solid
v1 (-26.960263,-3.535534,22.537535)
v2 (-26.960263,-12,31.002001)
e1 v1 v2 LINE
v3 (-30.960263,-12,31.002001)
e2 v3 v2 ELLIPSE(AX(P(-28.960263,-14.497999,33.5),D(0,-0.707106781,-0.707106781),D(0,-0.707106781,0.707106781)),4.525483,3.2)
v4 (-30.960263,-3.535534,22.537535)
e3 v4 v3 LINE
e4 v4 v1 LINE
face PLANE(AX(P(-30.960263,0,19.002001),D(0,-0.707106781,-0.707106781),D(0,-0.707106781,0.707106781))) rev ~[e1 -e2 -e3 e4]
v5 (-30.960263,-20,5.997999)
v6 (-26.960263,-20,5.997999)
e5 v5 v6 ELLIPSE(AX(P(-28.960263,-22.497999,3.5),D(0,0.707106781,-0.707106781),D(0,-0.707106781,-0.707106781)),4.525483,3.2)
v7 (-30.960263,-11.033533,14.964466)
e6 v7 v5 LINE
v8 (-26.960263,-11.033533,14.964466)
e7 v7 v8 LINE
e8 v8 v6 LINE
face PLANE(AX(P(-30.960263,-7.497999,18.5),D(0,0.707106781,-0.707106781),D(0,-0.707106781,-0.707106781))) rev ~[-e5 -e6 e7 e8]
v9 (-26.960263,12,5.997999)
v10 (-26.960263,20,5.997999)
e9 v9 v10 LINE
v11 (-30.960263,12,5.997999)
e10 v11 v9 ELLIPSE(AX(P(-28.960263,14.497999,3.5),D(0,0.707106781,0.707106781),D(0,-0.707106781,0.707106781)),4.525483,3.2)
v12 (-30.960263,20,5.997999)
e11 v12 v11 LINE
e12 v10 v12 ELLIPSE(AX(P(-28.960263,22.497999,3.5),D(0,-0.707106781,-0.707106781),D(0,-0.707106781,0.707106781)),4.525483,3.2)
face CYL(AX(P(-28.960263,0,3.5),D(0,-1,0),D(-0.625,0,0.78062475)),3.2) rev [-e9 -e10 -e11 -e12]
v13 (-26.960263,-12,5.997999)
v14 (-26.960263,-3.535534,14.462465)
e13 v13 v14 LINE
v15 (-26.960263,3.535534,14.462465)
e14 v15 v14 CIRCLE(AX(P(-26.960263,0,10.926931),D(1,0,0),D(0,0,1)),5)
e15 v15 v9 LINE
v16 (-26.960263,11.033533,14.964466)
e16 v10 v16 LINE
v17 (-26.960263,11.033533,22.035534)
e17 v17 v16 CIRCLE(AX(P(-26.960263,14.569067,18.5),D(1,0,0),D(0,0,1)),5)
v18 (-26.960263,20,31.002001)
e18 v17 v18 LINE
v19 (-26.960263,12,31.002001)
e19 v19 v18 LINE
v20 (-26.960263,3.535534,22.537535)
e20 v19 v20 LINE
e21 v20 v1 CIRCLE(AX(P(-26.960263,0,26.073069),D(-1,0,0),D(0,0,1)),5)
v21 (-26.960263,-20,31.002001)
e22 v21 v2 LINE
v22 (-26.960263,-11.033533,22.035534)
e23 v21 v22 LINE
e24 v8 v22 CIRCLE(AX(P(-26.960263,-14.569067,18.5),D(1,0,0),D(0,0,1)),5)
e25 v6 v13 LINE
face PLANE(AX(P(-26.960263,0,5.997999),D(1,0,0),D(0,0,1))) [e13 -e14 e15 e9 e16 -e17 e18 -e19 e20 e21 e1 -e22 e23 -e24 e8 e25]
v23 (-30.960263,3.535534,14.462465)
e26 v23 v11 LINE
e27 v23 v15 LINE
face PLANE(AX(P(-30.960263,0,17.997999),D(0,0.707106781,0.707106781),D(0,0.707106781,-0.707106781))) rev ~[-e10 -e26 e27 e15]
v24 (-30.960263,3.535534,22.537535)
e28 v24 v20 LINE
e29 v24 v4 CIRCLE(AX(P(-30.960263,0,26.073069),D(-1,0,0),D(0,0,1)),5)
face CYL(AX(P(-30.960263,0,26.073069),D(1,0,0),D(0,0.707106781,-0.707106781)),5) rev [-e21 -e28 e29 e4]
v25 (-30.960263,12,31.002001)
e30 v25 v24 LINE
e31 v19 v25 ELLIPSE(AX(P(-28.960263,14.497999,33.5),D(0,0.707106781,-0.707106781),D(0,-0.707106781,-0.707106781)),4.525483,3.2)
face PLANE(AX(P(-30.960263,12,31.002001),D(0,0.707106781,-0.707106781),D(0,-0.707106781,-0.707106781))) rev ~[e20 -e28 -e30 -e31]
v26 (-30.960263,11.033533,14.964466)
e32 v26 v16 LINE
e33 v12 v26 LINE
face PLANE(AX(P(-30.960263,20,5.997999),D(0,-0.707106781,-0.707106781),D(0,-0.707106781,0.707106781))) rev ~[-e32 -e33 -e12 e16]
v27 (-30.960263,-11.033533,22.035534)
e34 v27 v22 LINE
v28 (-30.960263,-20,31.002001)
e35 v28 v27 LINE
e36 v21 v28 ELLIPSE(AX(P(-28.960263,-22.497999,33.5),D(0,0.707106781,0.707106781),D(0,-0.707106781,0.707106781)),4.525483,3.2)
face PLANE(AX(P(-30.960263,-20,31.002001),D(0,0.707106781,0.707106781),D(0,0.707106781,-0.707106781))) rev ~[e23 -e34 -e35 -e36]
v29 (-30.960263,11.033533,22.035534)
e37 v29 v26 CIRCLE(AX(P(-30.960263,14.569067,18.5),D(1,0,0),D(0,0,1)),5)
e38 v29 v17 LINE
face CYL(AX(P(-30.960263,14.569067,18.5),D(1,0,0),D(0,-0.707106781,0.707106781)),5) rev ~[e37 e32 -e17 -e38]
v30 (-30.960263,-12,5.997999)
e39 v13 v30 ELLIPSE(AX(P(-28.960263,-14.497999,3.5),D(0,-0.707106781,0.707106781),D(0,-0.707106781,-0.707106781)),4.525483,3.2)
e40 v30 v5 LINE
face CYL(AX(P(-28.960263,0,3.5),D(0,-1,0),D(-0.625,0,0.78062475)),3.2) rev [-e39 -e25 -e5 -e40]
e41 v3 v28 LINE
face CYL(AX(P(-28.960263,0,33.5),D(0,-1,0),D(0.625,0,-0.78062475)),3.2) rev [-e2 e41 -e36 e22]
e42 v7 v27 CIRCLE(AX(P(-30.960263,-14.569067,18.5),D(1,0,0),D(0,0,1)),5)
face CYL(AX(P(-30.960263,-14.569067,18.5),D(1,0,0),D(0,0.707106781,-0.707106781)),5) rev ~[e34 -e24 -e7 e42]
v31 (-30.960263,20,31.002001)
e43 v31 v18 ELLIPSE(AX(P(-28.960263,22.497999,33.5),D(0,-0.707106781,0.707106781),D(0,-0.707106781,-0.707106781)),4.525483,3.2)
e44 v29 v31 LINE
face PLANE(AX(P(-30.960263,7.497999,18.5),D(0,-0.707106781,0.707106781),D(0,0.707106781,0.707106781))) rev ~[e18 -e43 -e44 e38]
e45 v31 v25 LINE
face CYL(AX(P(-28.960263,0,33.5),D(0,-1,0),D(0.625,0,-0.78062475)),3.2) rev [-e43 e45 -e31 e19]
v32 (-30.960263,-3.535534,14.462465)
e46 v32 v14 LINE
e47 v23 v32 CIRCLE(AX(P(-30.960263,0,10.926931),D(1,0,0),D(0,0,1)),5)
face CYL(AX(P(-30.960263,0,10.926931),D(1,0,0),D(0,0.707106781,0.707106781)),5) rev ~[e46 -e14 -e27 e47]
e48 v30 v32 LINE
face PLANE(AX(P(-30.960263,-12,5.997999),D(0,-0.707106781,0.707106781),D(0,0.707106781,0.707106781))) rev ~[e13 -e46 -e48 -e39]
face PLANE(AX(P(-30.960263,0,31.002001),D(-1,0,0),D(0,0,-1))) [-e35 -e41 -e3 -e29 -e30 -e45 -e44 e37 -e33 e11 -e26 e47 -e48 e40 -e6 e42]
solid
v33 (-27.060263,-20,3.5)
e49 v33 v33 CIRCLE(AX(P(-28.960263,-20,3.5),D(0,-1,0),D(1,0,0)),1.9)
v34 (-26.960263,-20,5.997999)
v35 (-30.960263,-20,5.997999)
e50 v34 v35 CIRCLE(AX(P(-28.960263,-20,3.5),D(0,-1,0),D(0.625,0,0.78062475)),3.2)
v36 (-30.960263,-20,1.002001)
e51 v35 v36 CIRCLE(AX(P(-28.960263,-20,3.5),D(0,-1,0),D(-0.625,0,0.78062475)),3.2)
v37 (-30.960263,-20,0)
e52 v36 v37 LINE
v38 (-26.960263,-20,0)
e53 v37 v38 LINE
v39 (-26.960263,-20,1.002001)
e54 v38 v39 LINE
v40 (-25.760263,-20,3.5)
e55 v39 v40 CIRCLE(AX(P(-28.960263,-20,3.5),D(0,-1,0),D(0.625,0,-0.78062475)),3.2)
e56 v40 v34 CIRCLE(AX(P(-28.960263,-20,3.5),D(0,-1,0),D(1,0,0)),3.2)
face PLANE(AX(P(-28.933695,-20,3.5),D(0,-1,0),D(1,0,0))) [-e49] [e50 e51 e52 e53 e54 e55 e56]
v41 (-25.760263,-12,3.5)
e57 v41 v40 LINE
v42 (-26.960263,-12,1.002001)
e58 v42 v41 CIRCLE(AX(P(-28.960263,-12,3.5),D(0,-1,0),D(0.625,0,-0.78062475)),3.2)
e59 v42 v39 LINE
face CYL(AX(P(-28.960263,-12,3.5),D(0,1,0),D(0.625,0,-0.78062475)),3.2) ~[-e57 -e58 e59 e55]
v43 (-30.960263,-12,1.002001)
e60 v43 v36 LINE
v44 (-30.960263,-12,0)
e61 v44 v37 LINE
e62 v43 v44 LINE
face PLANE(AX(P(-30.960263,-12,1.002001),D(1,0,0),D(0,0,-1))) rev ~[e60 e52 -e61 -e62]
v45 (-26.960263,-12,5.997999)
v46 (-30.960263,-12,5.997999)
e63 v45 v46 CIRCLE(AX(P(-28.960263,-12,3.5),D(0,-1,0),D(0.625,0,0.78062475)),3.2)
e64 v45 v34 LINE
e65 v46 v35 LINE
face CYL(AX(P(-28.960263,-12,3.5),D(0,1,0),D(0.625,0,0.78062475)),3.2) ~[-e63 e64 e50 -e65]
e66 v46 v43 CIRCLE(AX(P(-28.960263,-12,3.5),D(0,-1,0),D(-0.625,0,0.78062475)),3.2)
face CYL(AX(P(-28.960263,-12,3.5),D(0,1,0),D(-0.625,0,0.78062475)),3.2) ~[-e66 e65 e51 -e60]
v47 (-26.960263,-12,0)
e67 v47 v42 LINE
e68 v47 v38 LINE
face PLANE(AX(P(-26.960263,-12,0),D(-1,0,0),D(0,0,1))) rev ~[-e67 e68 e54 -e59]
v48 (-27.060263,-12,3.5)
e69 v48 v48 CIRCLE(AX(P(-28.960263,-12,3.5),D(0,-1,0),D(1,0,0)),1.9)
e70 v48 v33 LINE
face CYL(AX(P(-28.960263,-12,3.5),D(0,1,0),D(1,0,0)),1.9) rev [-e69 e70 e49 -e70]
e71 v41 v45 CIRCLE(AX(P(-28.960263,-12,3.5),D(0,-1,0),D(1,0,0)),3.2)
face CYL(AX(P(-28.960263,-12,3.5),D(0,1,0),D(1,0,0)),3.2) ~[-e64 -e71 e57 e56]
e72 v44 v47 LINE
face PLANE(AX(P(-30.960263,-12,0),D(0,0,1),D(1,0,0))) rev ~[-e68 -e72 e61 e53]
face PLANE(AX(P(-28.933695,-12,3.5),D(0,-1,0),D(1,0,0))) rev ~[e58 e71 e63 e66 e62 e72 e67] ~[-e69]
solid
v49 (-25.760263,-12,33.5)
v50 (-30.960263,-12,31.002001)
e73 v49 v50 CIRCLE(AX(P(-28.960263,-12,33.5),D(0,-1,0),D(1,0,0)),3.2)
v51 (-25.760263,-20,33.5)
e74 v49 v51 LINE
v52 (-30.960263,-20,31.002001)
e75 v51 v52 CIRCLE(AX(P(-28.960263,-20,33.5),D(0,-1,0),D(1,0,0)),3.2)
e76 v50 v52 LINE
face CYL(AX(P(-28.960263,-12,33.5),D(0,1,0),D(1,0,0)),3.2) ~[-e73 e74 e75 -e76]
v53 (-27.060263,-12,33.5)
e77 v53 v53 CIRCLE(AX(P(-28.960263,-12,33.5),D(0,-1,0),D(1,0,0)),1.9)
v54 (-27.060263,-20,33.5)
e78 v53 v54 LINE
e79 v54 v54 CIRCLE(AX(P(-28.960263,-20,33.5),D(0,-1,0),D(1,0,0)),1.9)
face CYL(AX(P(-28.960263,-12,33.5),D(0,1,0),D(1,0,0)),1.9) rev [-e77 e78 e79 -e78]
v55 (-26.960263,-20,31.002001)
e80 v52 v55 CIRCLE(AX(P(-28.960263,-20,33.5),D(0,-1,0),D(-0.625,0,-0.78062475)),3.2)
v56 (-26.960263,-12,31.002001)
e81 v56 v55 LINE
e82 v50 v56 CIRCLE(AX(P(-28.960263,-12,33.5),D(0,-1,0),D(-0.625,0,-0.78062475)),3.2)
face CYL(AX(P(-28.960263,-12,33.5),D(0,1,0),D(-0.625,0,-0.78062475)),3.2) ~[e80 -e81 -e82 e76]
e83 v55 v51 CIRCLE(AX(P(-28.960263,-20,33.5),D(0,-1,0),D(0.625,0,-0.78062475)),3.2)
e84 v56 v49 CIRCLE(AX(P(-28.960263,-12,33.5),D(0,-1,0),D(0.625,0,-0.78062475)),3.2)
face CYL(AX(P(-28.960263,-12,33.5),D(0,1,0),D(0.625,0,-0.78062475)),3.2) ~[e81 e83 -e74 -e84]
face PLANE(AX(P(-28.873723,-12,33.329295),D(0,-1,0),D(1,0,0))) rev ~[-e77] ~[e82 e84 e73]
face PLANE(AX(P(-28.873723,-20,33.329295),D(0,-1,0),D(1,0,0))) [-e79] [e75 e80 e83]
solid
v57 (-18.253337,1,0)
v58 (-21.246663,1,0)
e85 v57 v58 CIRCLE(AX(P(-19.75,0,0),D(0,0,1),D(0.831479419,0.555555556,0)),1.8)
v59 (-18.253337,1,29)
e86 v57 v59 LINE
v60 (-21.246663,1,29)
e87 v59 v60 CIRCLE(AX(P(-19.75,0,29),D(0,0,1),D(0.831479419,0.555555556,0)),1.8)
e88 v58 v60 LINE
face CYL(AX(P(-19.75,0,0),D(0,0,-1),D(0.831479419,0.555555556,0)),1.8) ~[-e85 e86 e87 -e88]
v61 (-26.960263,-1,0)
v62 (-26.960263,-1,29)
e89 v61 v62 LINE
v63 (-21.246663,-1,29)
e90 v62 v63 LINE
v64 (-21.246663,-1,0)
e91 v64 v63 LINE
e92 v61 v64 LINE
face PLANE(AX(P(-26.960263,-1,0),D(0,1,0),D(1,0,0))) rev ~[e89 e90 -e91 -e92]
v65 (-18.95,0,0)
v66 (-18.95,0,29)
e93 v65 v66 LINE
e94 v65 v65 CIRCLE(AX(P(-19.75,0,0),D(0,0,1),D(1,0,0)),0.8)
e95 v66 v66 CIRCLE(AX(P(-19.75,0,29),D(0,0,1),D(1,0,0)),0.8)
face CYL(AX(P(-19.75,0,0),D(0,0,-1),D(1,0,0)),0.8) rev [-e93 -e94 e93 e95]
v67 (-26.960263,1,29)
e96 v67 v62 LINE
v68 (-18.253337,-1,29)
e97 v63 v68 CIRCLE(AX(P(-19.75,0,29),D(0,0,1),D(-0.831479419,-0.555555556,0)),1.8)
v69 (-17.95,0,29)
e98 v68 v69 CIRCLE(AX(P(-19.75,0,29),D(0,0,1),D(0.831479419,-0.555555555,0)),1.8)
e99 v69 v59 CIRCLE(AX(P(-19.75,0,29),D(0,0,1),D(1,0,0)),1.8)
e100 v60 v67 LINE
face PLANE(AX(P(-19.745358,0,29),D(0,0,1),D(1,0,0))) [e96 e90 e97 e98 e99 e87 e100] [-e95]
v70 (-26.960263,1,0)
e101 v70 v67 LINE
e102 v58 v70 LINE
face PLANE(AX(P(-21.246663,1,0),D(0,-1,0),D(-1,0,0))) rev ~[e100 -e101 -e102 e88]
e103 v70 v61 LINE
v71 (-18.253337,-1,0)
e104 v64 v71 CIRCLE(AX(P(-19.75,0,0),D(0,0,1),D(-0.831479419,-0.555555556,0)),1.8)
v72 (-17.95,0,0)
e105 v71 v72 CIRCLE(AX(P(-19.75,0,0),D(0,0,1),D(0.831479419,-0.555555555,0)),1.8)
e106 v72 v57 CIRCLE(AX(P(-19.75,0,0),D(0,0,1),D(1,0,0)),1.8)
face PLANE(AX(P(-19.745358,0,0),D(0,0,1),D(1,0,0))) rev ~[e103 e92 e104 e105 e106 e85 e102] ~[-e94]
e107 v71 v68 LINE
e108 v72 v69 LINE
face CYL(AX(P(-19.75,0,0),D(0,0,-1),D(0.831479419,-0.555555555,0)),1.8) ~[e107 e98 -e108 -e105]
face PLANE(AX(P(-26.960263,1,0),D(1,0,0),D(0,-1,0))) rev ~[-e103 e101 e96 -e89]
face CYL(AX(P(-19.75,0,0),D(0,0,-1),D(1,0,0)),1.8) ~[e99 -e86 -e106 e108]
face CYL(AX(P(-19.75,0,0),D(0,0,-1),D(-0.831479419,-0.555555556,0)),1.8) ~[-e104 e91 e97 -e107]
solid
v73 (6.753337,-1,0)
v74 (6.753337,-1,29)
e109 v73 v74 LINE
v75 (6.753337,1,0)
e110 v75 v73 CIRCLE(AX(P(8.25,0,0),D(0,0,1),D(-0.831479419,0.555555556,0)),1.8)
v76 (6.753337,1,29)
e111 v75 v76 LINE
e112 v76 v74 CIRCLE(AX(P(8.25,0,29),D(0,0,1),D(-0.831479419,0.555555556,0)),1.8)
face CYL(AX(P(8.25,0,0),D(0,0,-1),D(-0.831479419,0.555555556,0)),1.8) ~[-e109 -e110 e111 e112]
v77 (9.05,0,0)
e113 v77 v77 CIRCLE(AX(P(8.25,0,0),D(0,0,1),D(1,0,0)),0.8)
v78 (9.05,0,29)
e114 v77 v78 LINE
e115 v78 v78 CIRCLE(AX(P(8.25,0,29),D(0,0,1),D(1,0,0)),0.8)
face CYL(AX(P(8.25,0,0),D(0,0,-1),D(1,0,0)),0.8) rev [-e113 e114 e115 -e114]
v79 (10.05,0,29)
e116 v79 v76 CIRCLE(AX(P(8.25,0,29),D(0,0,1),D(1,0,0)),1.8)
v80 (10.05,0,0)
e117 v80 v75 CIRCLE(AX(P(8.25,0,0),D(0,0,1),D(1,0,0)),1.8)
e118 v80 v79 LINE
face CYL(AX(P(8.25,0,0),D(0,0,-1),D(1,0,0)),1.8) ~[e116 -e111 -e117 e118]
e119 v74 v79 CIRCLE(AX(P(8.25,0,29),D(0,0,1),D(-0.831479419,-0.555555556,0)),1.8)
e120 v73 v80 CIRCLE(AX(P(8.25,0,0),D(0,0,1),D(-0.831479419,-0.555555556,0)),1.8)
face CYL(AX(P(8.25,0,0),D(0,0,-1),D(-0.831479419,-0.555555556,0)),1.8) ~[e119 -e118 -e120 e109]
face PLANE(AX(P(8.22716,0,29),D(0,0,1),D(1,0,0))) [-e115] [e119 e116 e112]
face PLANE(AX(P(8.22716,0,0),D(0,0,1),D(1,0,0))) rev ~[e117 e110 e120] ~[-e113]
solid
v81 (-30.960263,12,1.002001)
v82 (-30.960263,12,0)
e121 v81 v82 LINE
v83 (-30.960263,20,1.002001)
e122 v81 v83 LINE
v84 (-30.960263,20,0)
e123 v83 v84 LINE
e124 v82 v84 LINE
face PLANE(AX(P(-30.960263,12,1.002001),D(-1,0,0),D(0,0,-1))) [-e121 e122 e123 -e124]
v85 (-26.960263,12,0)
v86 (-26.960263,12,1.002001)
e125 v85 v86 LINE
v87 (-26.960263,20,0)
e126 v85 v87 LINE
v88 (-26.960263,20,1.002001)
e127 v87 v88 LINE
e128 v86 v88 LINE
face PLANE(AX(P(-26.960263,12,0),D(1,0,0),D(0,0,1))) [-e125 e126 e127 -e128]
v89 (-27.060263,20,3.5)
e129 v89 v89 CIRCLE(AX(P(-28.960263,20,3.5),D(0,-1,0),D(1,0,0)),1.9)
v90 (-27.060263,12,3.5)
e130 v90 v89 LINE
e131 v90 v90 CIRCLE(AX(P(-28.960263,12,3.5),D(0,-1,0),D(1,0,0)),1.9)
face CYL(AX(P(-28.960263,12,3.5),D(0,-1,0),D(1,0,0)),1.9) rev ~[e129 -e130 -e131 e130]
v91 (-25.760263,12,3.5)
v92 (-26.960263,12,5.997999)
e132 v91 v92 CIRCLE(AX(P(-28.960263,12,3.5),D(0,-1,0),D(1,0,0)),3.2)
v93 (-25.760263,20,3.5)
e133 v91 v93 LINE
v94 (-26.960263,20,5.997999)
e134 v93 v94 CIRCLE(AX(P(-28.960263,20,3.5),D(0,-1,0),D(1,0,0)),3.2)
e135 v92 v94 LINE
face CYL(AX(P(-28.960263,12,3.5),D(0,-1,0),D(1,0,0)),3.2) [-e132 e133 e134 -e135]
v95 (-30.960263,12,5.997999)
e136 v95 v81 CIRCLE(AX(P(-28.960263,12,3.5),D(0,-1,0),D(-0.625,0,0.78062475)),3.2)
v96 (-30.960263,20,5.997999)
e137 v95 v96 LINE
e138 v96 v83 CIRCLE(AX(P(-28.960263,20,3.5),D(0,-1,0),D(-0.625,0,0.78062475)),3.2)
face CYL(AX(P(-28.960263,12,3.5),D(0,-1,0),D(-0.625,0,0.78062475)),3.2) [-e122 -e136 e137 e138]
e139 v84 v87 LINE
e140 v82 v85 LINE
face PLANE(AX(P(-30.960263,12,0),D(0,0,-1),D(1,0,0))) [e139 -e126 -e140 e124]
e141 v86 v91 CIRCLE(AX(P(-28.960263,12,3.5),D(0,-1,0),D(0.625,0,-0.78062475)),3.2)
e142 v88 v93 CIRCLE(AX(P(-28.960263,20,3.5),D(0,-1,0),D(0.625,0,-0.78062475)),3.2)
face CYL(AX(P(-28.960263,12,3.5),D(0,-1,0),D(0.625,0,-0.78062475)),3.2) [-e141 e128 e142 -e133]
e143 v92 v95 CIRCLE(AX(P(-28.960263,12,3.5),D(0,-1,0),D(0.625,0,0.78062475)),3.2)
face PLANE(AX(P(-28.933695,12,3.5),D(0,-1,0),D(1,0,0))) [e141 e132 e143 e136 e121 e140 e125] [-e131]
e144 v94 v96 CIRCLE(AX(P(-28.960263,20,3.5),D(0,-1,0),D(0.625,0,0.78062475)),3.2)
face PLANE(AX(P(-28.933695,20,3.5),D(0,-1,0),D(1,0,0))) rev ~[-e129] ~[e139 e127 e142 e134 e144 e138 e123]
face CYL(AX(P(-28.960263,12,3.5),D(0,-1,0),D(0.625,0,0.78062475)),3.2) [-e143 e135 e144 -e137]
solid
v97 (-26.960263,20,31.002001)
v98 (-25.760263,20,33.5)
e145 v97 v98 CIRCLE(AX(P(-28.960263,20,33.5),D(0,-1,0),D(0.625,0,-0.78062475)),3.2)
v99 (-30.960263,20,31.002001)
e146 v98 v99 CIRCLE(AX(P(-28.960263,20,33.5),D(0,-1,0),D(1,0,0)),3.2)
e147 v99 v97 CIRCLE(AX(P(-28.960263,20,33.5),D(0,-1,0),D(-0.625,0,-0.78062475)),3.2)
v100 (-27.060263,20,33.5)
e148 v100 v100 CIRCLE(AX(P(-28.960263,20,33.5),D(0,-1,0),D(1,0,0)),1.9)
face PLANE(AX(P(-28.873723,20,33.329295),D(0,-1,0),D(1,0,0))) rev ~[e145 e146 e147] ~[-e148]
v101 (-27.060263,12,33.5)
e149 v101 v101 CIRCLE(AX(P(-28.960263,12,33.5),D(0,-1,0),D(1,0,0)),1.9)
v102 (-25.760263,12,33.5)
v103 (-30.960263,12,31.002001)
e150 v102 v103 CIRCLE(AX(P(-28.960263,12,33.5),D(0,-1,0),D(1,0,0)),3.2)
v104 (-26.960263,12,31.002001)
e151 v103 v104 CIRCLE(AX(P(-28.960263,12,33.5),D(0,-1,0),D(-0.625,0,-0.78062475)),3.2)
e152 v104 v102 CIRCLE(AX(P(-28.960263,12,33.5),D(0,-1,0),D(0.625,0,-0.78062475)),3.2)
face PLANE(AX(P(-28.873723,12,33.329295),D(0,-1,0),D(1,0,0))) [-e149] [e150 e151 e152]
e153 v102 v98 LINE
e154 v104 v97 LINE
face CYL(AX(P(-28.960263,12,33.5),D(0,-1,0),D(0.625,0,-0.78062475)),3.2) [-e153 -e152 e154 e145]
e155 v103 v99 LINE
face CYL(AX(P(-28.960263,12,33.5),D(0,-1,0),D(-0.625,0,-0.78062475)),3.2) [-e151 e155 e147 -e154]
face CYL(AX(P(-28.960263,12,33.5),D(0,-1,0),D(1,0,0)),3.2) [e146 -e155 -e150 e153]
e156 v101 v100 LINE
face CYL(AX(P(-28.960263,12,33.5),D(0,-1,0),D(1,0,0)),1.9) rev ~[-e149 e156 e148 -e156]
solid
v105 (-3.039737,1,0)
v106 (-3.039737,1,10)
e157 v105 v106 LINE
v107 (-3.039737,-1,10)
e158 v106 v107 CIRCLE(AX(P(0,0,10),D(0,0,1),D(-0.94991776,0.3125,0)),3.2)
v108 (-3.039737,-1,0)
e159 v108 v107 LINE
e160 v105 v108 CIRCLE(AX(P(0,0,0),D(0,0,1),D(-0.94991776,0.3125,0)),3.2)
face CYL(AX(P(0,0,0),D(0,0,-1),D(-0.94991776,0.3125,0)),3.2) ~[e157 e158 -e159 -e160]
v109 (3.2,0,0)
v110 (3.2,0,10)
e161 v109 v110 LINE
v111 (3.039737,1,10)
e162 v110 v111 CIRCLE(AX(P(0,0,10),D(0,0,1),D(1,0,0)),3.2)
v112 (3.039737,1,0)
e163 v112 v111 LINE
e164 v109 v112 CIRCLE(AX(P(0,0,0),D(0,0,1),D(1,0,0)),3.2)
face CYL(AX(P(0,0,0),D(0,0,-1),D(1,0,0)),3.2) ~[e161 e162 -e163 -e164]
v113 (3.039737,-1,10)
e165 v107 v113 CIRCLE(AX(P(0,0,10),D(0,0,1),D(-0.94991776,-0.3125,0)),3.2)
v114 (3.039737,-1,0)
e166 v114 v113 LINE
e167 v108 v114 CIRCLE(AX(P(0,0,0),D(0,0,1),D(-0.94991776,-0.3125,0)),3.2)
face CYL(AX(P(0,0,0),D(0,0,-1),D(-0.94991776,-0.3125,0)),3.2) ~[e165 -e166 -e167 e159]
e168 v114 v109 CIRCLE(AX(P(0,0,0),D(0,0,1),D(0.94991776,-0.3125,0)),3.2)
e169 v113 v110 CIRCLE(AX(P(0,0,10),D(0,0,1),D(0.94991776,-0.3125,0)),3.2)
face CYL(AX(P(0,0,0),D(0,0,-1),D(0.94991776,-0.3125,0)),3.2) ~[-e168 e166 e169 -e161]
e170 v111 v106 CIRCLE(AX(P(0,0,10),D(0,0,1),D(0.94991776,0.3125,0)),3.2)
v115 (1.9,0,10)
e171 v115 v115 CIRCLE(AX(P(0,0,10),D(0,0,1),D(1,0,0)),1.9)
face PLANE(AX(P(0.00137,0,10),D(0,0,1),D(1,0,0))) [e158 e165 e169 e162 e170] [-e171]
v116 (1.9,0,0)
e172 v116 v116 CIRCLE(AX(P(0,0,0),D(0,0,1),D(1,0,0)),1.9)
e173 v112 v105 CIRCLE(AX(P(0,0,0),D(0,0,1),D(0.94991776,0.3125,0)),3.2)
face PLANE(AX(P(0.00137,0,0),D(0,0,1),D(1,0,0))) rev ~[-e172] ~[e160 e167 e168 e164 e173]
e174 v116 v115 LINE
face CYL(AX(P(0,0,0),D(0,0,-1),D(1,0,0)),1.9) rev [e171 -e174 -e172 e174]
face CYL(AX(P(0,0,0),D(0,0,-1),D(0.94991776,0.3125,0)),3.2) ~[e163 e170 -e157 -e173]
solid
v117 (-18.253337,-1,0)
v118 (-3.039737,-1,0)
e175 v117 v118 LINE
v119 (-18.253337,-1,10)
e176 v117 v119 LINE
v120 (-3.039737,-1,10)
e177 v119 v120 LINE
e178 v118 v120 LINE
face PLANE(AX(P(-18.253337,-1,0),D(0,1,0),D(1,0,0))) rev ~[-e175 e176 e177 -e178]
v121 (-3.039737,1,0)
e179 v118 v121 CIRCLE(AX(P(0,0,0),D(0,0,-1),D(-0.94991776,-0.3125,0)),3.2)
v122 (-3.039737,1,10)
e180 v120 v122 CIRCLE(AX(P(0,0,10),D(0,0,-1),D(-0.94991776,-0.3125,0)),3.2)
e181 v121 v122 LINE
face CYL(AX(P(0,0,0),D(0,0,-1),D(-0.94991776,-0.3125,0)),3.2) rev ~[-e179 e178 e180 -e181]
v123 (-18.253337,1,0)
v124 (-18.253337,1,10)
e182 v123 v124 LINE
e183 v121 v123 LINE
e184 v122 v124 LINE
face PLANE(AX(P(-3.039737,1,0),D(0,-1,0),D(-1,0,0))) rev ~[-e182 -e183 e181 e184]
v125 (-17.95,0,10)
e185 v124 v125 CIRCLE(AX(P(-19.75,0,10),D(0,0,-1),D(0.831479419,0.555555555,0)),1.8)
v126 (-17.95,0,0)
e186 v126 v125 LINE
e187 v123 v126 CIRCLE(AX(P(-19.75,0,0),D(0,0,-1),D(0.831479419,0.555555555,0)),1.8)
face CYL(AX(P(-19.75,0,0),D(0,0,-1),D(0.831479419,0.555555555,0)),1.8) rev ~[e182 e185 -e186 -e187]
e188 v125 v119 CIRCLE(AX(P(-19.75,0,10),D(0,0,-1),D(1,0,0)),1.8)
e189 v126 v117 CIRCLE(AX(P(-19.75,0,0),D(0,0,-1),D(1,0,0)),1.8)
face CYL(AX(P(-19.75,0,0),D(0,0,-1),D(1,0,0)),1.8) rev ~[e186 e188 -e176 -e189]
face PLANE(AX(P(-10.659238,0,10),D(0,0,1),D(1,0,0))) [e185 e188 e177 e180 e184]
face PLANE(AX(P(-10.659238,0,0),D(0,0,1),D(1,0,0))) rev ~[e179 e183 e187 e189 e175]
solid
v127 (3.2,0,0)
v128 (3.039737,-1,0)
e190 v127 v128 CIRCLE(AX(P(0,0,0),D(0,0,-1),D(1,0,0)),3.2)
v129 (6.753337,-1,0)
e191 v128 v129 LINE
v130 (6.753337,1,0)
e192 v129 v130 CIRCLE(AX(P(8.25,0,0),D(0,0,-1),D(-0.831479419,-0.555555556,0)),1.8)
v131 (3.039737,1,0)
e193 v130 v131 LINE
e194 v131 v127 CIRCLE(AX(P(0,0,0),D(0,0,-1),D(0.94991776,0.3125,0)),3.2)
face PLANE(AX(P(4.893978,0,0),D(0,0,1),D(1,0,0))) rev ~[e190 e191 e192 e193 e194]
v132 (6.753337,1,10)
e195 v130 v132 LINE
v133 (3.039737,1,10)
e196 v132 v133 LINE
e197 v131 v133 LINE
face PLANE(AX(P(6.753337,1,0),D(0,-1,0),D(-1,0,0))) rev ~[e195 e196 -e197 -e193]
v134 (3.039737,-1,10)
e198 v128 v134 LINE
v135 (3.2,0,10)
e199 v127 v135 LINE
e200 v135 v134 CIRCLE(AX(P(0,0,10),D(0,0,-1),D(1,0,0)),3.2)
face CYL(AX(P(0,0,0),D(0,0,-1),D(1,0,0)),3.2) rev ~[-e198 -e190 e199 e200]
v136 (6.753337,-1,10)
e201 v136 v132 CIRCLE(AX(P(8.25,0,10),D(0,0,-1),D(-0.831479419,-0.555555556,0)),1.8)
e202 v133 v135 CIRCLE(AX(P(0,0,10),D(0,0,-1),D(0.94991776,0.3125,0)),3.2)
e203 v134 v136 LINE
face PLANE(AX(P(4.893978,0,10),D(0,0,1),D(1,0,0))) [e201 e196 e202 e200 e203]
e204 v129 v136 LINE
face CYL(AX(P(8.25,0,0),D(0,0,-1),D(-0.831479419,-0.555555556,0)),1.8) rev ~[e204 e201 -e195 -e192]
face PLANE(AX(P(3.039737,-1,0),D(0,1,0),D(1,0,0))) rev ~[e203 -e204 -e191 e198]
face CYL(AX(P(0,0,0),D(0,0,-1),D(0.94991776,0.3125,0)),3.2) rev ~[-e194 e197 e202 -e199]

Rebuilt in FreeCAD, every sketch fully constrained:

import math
import FreeCAD as App
import Part
import Sketcher

V = App.Vector


def edges_at(feature, points):
    """Names of the edges that pass closest to the given points."""
    edges = feature.Shape.Edges
    near = lambda p: min(range(len(edges)), key=lambda i: edges[i].distToShape(Part.Vertex(*p))[0])
    return sorted({f"Edge{near(p) + 1}" for p in points})

doc = App.newDocument("Part")
body = doc.addObject("PartDesign::Body", "Body")

# Sketch on XY plane
sketch1 = body.newObject("Sketcher::SketchObject", "Sketch")
sketch1.AttachmentSupport = (doc.getObject("XY_Plane"), [""])
sketch1.MapMode = "FlatFace"
sketch1.addGeometry([
    Part.ArcOfCircle(Part.Circle(V(-19.75, 0, 0), V(0, 0, 1), 1.8), math.radians(0), math.radians(33.748989)),  # 0
    Part.ArcOfCircle(Part.Circle(V(-19.75, 0, 0), V(0, 0, 1), 1.8), math.radians(33.748989), math.radians(146.251011)),  # 1
    Part.LineSegment(V(-21.246663, 1, 0), V(-26.960263, 1, 0)),  # 2
    Part.LineSegment(V(-26.960263, 1, 0), V(-26.960263, -1, 0)),  # 3
    Part.LineSegment(V(-26.960263, -1, 0), V(-21.246663, -1, 0)),  # 4
    Part.ArcOfCircle(Part.Circle(V(-19.75, 0, 0), V(0, 0, 1), 1.8), math.radians(-146.251011), math.radians(-33.748989)),  # 5
    Part.ArcOfCircle(Part.Circle(V(-19.75, 0, 0), V(0, 0, 1), 1.8), math.radians(-33.748989), math.radians(0)),  # 6
    Part.Circle(V(-19.75, 0, 0), V(0, 0, 1), 0.8),  # 7
], False)
sketch1.addConstraint([
    Sketcher.Constraint("Tangent", 0, 2, 1, 1),
    Sketcher.Constraint("Coincident", 1, 2, 2, 1),
    Sketcher.Constraint("Coincident", 2, 2, 3, 1),
    Sketcher.Constraint("Coincident", 3, 2, 4, 1),
    Sketcher.Constraint("Coincident", 4, 2, 5, 1),
    Sketcher.Constraint("Tangent", 5, 2, 6, 1),
    Sketcher.Constraint("Tangent", 6, 2, 0, 1),
    Sketcher.Constraint("Horizontal", 2),
    Sketcher.Constraint("Vertical", 3),
    Sketcher.Constraint("Horizontal", 4),
    Sketcher.Constraint("Coincident", 5, 3, 0, 3),
    Sketcher.Constraint("Coincident", 7, 3, 0, 3),
    Sketcher.Constraint("Equal", 0, 1),
    Sketcher.Constraint("Symmetric", 1, 2, 4, 2, -1),
    Sketcher.Constraint("PointOnObject", 6, 2, -1),
    Sketcher.Constraint("Horizontal", 0, 2, 1, 2),
    Sketcher.Constraint("Horizontal", 4, 2, 5, 2),
    Sketcher.Constraint("Diameter", 7, 1.6),
    Sketcher.Constraint("Radius", 0, 1.8),
    Sketcher.Constraint("DistanceY", 3, 2, 3, 1, 2.0),
    Sketcher.Constraint("DistanceX", 0, 3, -1, 1, 19.75),
    Sketcher.Constraint("DistanceX", 2, 2, 2, 1, 5.7136),
])
pad1 = body.newObject("PartDesign::Pad", "Pad")
pad1.Profile = sketch1
pad1.Length = 29
body2 = doc.addObject("PartDesign::Body", "Body001")

# Sketch on XY plane
sketch2 = body2.newObject("Sketcher::SketchObject", "Sketch001")
sketch2.AttachmentSupport = (doc.getObject("XY_Plane001"), [""])
sketch2.MapMode = "FlatFace"
sketch2.addGeometry([
    Part.ArcOfCircle(Part.Circle(V(8.25, 0, 0), V(0, 0, 1), 1.8), math.radians(0), math.radians(146.251011)),
    Part.ArcOfCircle(Part.Circle(V(8.25, 0, 0), V(0, 0, 1), 1.8), math.radians(146.251011), math.radians(213.748989)),
    Part.ArcOfCircle(Part.Circle(V(8.25, 0, 0), V(0, 0, 1), 1.8), math.radians(-146.251011), math.radians(0)),
    Part.Circle(V(8.25, 0, 0), V(0, 0, 1), 0.8),
], False)
sketch2.addConstraint([
    Sketcher.Constraint("Tangent", 0, 2, 1, 1),
    Sketcher.Constraint("Tangent", 1, 2, 2, 1),
    Sketcher.Constraint("Tangent", 2, 2, 0, 1),
    Sketcher.Constraint("Coincident", 3, 3, 0, 3),
    Sketcher.Constraint("Symmetric", 0, 2, 1, 2, -1),
    Sketcher.Constraint("PointOnObject", 2, 2, -1),
    Sketcher.Constraint("Diameter", 3, 1.6),
    Sketcher.Constraint("Radius", 0, 1.8),
    Sketcher.Constraint("DistanceY", -1, 1, 0, 2, 1.0),
    Sketcher.Constraint("DistanceX", -1, 1, 0, 3, 8.25),
])
pad2 = body2.newObject("PartDesign::Pad", "Pad001")
pad2.Profile = sketch2
pad2.Length = 29
body3 = doc.addObject("PartDesign::Body", "Body002")

# Sketch on XY plane
sketch3 = body3.newObject("Sketcher::SketchObject", "Sketch002")
sketch3.AttachmentSupport = (doc.getObject("XY_Plane002"), [""])
sketch3.MapMode = "FlatFace"
sketch3.addGeometry([
    Part.ArcOfCircle(Part.Circle(V(0, 0, 0), V(0, 0, 1), 3.2), math.radians(161.790043), math.radians(198.209957)),  # 0
    Part.LineSegment(V(-3.039737, 1, 0), V(-18.253337, 1, 0)),  # 1
    Part.ArcOfCircle(Part.Circle(V(-19.75, 0, 0), V(0, 0, 1), 1.8), math.radians(0), math.radians(33.748989)),  # 2
    Part.ArcOfCircle(Part.Circle(V(-19.75, 0, 0), V(0, 0, 1), 1.8), math.radians(-33.748989), math.radians(0)),  # 3
    Part.LineSegment(V(-18.253337, -1, 0), V(-3.039737, -1, 0)),  # 4
], False)
sketch3.addConstraint([
    Sketcher.Constraint("Coincident", 0, 1, 1, 1),
    Sketcher.Constraint("Coincident", 1, 2, 2, 2),
    Sketcher.Constraint("Tangent", 2, 1, 3, 2),
    Sketcher.Constraint("Coincident", 3, 1, 4, 1),
    Sketcher.Constraint("Coincident", 4, 2, 0, 2),
    Sketcher.Constraint("Horizontal", 1),
    Sketcher.Constraint("Horizontal", 4),
    Sketcher.Constraint("Coincident", 0, 3, -1, 1),
    Sketcher.Constraint("Equal", 2, 3),
    Sketcher.Constraint("Symmetric", 1, 2, 3, 1, -1),
    Sketcher.Constraint("PointOnObject", 2, 1, -1),
    Sketcher.Constraint("Radius", 0, 3.2),
    Sketcher.Constraint("Radius", 2, 1.8),
    Sketcher.Constraint("DistanceY", -1, 1, 0, 1, 1.0),
    Sketcher.Constraint("DistanceX", 2, 3, -1, 1, 19.75),
])
pad3 = body3.newObject("PartDesign::Pad", "Pad002")
pad3.Profile = sketch3
pad3.Length = 10
body4 = doc.addObject("PartDesign::Body", "Body003")

# Sketch on XY plane
sketch4 = body4.newObject("Sketcher::SketchObject", "Sketch003")
sketch4.AttachmentSupport = (doc.getObject("XY_Plane003"), [""])
sketch4.MapMode = "FlatFace"
sketch4.addGeometry([
    Part.ArcOfCircle(Part.Circle(V(0, 0, 0), V(0, 0, 1), 3.2), math.radians(0), math.radians(18.209957)),  # 0
    Part.ArcOfCircle(Part.Circle(V(0, 0, 0), V(0, 0, 1), 3.2), math.radians(-18.209957), math.radians(0)),  # 1
    Part.LineSegment(V(3.039737, -1, 0), V(6.753337, -1, 0)),  # 2
    Part.ArcOfCircle(Part.Circle(V(8.25, 0, 0), V(0, 0, 1), 1.8), math.radians(146.251011), math.radians(213.748989)),  # 3
    Part.LineSegment(V(6.753337, 1, 0), V(3.039737, 1, 0)),  # 4
], False)
sketch4.addConstraint([
    Sketcher.Constraint("Tangent", 0, 1, 1, 2),
    Sketcher.Constraint("Coincident", 1, 1, 2, 1),
    Sketcher.Constraint("Coincident", 2, 2, 3, 2),
    Sketcher.Constraint("Coincident", 3, 1, 4, 1),
    Sketcher.Constraint("Coincident", 4, 2, 0, 2),
    Sketcher.Constraint("Horizontal", 2),
    Sketcher.Constraint("Horizontal", 4),
    Sketcher.Constraint("Coincident", 0, 3, -1, 1),
    Sketcher.Constraint("Equal", 0, 1),
    Sketcher.Constraint("Symmetric", 2, 2, 3, 1, -1),
    Sketcher.Constraint("PointOnObject", 0, 1, -1),
    Sketcher.Constraint("Radius", 0, 3.2),
    Sketcher.Constraint("Radius", 3, 1.8),
    Sketcher.Constraint("DistanceY", 1, 1, -1, 1, 1.0),
    Sketcher.Constraint("DistanceX", -1, 1, 3, 3, 8.25),
])
pad4 = body4.newObject("PartDesign::Pad", "Pad003")
pad4.Profile = sketch4
pad4.Length = 10
body5 = doc.addObject("PartDesign::Body", "Body004")

# Sketch on XY plane
sketch5 = body5.newObject("Sketcher::SketchObject", "Sketch004")
sketch5.AttachmentSupport = (doc.getObject("XY_Plane004"), [""])
sketch5.MapMode = "FlatFace"
sketch5.addGeometry([
    Part.ArcOfCircle(Part.Circle(V(0, 0, 0), V(0, 0, 1), 3.2), math.radians(-18.209957), math.radians(0)),  # 0
    Part.ArcOfCircle(Part.Circle(V(0, 0, 0), V(0, 0, 1), 3.2), math.radians(0), math.radians(18.209957)),  # 1
    Part.ArcOfCircle(Part.Circle(V(0, 0, 0), V(0, 0, 1), 3.2), math.radians(18.209957), math.radians(161.790043)),  # 2
    Part.ArcOfCircle(Part.Circle(V(0, 0, 0), V(0, 0, 1), 3.2), math.radians(161.790043), math.radians(198.209957)),  # 3
    Part.ArcOfCircle(Part.Circle(V(0, 0, 0), V(0, 0, 1), 3.2), math.radians(-161.790043), math.radians(-18.209957)),  # 4
    Part.Circle(V(0, 0, 0), V(0, 0, 1), 1.9),  # 5
], False)
sketch5.addConstraint([
    Sketcher.Constraint("Tangent", 0, 2, 1, 1),
    Sketcher.Constraint("Tangent", 1, 2, 2, 1),
    Sketcher.Constraint("Tangent", 2, 2, 3, 1),
    Sketcher.Constraint("Tangent", 3, 2, 4, 1),
    Sketcher.Constraint("Tangent", 4, 2, 0, 1),
    Sketcher.Constraint("Coincident", 0, 3, -1, 1),
    Sketcher.Constraint("Coincident", 2, 3, -1, 1),
    Sketcher.Constraint("Coincident", 5, 3, -1, 1),
    Sketcher.Constraint("PointOnObject", 0, 2, -1),
    Sketcher.Constraint("Horizontal", 1, 2, 2, 2),
    Sketcher.Constraint("Horizontal", 3, 2, 4, 2),
    Sketcher.Constraint("Vertical", 2, 2, 3, 2),
    Sketcher.Constraint("Diameter", 5, 3.8),
    Sketcher.Constraint("Radius", 0, 3.2),
    Sketcher.Constraint("DistanceY", -1, 1, 1, 2, 1.0),
])
pad5 = body5.newObject("PartDesign::Pad", "Pad004")
pad5.Profile = sketch5
pad5.Length = 10
body6 = doc.addObject("PartDesign::Body", "Body005")

# Sketch on XZ plane
sketch6 = body6.newObject("Sketcher::SketchObject", "Sketch005")
sketch6.AttachmentSupport = (doc.getObject("XZ_Plane005"), [""])
sketch6.MapMode = "FlatFace"
sketch6.AttachmentOffset = App.Placement(V(0, 0, 12), App.Rotation())
sketch6.addGeometry([
    Part.ArcOfCircle(Part.Circle(V(-28.960263, 33.5, 0), V(0, 0, 1), 3.2), math.radians(-51.317813), math.radians(0)),
    Part.ArcOfCircle(Part.Circle(V(-28.960263, 33.5, 0), V(0, 0, 1), 3.2), math.radians(0), math.radians(231.317813)),
    Part.ArcOfCircle(Part.Circle(V(-28.960263, 33.5, 0), V(0, 0, 1), 3.2), math.radians(-128.682187), math.radians(-51.317813)),
    Part.Circle(V(-28.960263, 33.5, 0), V(0, 0, 1), 1.9),
], False)
sketch6.addConstraint([
    Sketcher.Constraint("Tangent", 0, 2, 1, 1),
    Sketcher.Constraint("Tangent", 1, 2, 2, 1),
    Sketcher.Constraint("Tangent", 2, 2, 0, 1),
    Sketcher.Constraint("Coincident", 3, 3, 0, 3),
    Sketcher.Constraint("Horizontal", 3, 3, 0, 2),
    Sketcher.Constraint("Horizontal", 1, 2, 2, 2),
    Sketcher.Constraint("Diameter", 3, 3.8),
    Sketcher.Constraint("Radius", 0, 3.2),
    Sketcher.Constraint("DistanceX", 1, 2, 0, 3, 2.0),
    Sketcher.Constraint("DistanceY", -1, 1, 0, 3, 33.5),
    Sketcher.Constraint("DistanceX", 0, 3, -1, 1, 28.960263),
])
pad6 = body6.newObject("PartDesign::Pad", "Pad005")
pad6.Profile = sketch6
pad6.Length = 8
body7 = doc.addObject("PartDesign::Body", "Body006")

# Sketch on XZ plane
sketch7 = body7.newObject("Sketcher::SketchObject", "Sketch006")
sketch7.AttachmentSupport = (doc.getObject("XZ_Plane006"), [""])
sketch7.MapMode = "FlatFace"
sketch7.AttachmentOffset = App.Placement(V(0, 0, 12), App.Rotation())
sketch7.addGeometry([
    Part.ArcOfCircle(Part.Circle(V(-28.960263, 3.5, 0), V(0, 0, 1), 3.2), math.radians(51.317813), math.radians(128.682187)),  # 0
    Part.ArcOfCircle(Part.Circle(V(-28.960263, 3.5, 0), V(0, 0, 1), 3.2), math.radians(128.682187), math.radians(231.317813)),  # 1
    Part.LineSegment(V(-30.960263, 1.002001, 0), V(-30.960263, 0, 0)),  # 2
    Part.LineSegment(V(-30.960263, 0, 0), V(-26.960263, 0, 0)),  # 3
    Part.LineSegment(V(-26.960263, 0, 0), V(-26.960263, 1.002001, 0)),  # 4
    Part.ArcOfCircle(Part.Circle(V(-28.960263, 3.5, 0), V(0, 0, 1), 3.2), math.radians(-51.317813), math.radians(0)),  # 5
    Part.ArcOfCircle(Part.Circle(V(-28.960263, 3.5, 0), V(0, 0, 1), 3.2), math.radians(0), math.radians(51.317813)),  # 6
    Part.Circle(V(-28.960263, 3.5, 0), V(0, 0, 1), 1.9),  # 7
], False)
sketch7.addConstraint([
    Sketcher.Constraint("Tangent", 0, 2, 1, 1),
    Sketcher.Constraint("Coincident", 1, 2, 2, 1),
    Sketcher.Constraint("Coincident", 2, 2, 3, 1),
    Sketcher.Constraint("Coincident", 3, 2, 4, 1),
    Sketcher.Constraint("Coincident", 4, 2, 5, 1),
    Sketcher.Constraint("Tangent", 5, 2, 6, 1),
    Sketcher.Constraint("Tangent", 6, 2, 0, 1),
    Sketcher.Constraint("Vertical", 2),
    Sketcher.Constraint("Horizontal", 3),
    Sketcher.Constraint("Vertical", 4),
    Sketcher.Constraint("Coincident", 5, 3, 0, 3),
    Sketcher.Constraint("Coincident", 7, 3, 0, 3),
    Sketcher.Constraint("Equal", 0, 1),
    Sketcher.Constraint("PointOnObject", 2, 2, -1),
    Sketcher.Constraint("Horizontal", 1, 2, 4, 2),
    Sketcher.Constraint("Horizontal", 7, 3, 5, 2),
    Sketcher.Constraint("Horizontal", 0, 2, 6, 2),
    Sketcher.Constraint("Vertical", 0, 2, 1, 2),
    Sketcher.Constraint("Diameter", 7, 3.8),
    Sketcher.Constraint("Radius", 0, 3.2),
    Sketcher.Constraint("DistanceX", 3, 1, 3, 2, 4.0),
    Sketcher.Constraint("DistanceY", -1, 1, 0, 3, 3.5),
    Sketcher.Constraint("DistanceX", 0, 3, -1, 1, 28.960263),
])
pad7 = body7.newObject("PartDesign::Pad", "Pad006")
pad7.Profile = sketch7
pad7.Length = 8
body8 = doc.addObject("PartDesign::Body", "Body007")

# Sketch on XZ plane
sketch8 = body8.newObject("Sketcher::SketchObject", "Sketch007")
sketch8.AttachmentSupport = (doc.getObject("XZ_Plane007"), [""])
sketch8.MapMode = "FlatFace"
sketch8.AttachmentOffset = App.Placement(V(0, 0, -12), App.Rotation())
sketch8.addGeometry([
    Part.ArcOfCircle(Part.Circle(V(-28.960263, 33.5, 0), V(0, 0, 1), 3.2), math.radians(-51.317813), math.radians(0)),
    Part.ArcOfCircle(Part.Circle(V(-28.960263, 33.5, 0), V(0, 0, 1), 3.2), math.radians(0), math.radians(231.317813)),
    Part.ArcOfCircle(Part.Circle(V(-28.960263, 33.5, 0), V(0, 0, 1), 3.2), math.radians(-128.682187), math.radians(-51.317813)),
    Part.Circle(V(-28.960263, 33.5, 0), V(0, 0, 1), 1.9),
], False)
sketch8.addConstraint([
    Sketcher.Constraint("Tangent", 0, 2, 1, 1),
    Sketcher.Constraint("Tangent", 1, 2, 2, 1),
    Sketcher.Constraint("Tangent", 2, 2, 0, 1),
    Sketcher.Constraint("Coincident", 3, 3, 0, 3),
    Sketcher.Constraint("Horizontal", 3, 3, 0, 2),
    Sketcher.Constraint("Horizontal", 1, 2, 2, 2),
    Sketcher.Constraint("Diameter", 3, 3.8),
    Sketcher.Constraint("Radius", 0, 3.2),
    Sketcher.Constraint("DistanceX", 1, 2, 0, 3, 2.0),
    Sketcher.Constraint("DistanceY", -1, 1, 0, 3, 33.5),
    Sketcher.Constraint("DistanceX", 0, 3, -1, 1, 28.960263),
])
pad8 = body8.newObject("PartDesign::Pad", "Pad007")
pad8.Profile = sketch8
pad8.Length = 8
pad8.Reversed = True
body9 = doc.addObject("PartDesign::Body", "Body008")

# Sketch on XZ plane
sketch9 = body9.newObject("Sketcher::SketchObject", "Sketch008")
sketch9.AttachmentSupport = (doc.getObject("XZ_Plane008"), [""])
sketch9.MapMode = "FlatFace"
sketch9.AttachmentOffset = App.Placement(V(0, 0, -12), App.Rotation())
sketch9.addGeometry([
    Part.ArcOfCircle(Part.Circle(V(-28.960263, 3.5, 0), V(0, 0, 1), 3.2), math.radians(51.317813), math.radians(128.682187)),  # 0
    Part.ArcOfCircle(Part.Circle(V(-28.960263, 3.5, 0), V(0, 0, 1), 3.2), math.radians(128.682187), math.radians(231.317813)),  # 1
    Part.LineSegment(V(-30.960263, 1.002001, 0), V(-30.960263, 0, 0)),  # 2
    Part.LineSegment(V(-30.960263, 0, 0), V(-26.960263, 0, 0)),  # 3
    Part.LineSegment(V(-26.960263, 0, 0), V(-26.960263, 1.002001, 0)),  # 4
    Part.ArcOfCircle(Part.Circle(V(-28.960263, 3.5, 0), V(0, 0, 1), 3.2), math.radians(-51.317813), math.radians(0)),  # 5
    Part.ArcOfCircle(Part.Circle(V(-28.960263, 3.5, 0), V(0, 0, 1), 3.2), math.radians(0), math.radians(51.317813)),  # 6
    Part.Circle(V(-28.960263, 3.5, 0), V(0, 0, 1), 1.9),  # 7
], False)
sketch9.addConstraint([
    Sketcher.Constraint("Tangent", 0, 2, 1, 1),
    Sketcher.Constraint("Coincident", 1, 2, 2, 1),
    Sketcher.Constraint("Coincident", 2, 2, 3, 1),
    Sketcher.Constraint("Coincident", 3, 2, 4, 1),
    Sketcher.Constraint("Coincident", 4, 2, 5, 1),
    Sketcher.Constraint("Tangent", 5, 2, 6, 1),
    Sketcher.Constraint("Tangent", 6, 2, 0, 1),
    Sketcher.Constraint("Vertical", 2),
    Sketcher.Constraint("Horizontal", 3),
    Sketcher.Constraint("Vertical", 4),
    Sketcher.Constraint("Coincident", 5, 3, 0, 3),
    Sketcher.Constraint("Coincident", 7, 3, 0, 3),
    Sketcher.Constraint("Equal", 0, 1),
    Sketcher.Constraint("PointOnObject", 2, 2, -1),
    Sketcher.Constraint("Horizontal", 1, 2, 4, 2),
    Sketcher.Constraint("Horizontal", 7, 3, 5, 2),
    Sketcher.Constraint("Horizontal", 0, 2, 6, 2),
    Sketcher.Constraint("Vertical", 0, 2, 1, 2),
    Sketcher.Constraint("Diameter", 7, 3.8),
    Sketcher.Constraint("Radius", 0, 3.2),
    Sketcher.Constraint("DistanceX", 3, 1, 3, 2, 4.0),
    Sketcher.Constraint("DistanceY", -1, 1, 0, 3, 3.5),
    Sketcher.Constraint("DistanceX", 0, 3, -1, 1, 28.960263),
])
pad9 = body9.newObject("PartDesign::Pad", "Pad008")
pad9.Profile = sketch9
pad9.Length = 8
pad9.Reversed = True
body10 = doc.addObject("PartDesign::Body", "Body009")

# Sketch on XZ plane
sketch10 = body10.newObject("Sketcher::SketchObject", "Sketch009")
sketch10.AttachmentSupport = (doc.getObject("XZ_Plane009"), [""])
sketch10.MapMode = "FlatFace"
sketch10.addGeometry([
    Part.ArcOfCircle(Part.Circle(V(-28.960263, 33.5, 0), V(0, 0, 1), 3.2), math.radians(-128.682187), math.radians(-51.317813)),
    Part.LineSegment(V(-30.960263, 31.002001, 0), V(-30.960263, 5.997999, 0)),
    Part.ArcOfCircle(Part.Circle(V(-28.960263, 3.5, 0), V(0, 0, 1), 3.2), math.radians(51.317813), math.radians(128.682187)),
    Part.LineSegment(V(-26.960263, 5.997999, 0), V(-26.960263, 31.002001, 0)),
], False)
sketch10.addConstraint([
    Sketcher.Constraint("Coincident", 0, 1, 1, 1),
    Sketcher.Constraint("Coincident", 1, 2, 2, 2),
    Sketcher.Constraint("Coincident", 2, 1, 3, 1),
    Sketcher.Constraint("Coincident", 3, 2, 0, 2),
    Sketcher.Constraint("Vertical", 1),
    Sketcher.Constraint("Vertical", 3),
    Sketcher.Constraint("Equal", 0, 2),
    Sketcher.Constraint("Horizontal", 1, 2, 2, 1),
    Sketcher.Constraint("Horizontal", 0, 1, 3, 2),
    Sketcher.Constraint("Radius", 0, 3.2),
    Sketcher.Constraint("DistanceY", 2, 3, 0, 3, 30.0),
    Sketcher.Constraint("DistanceX", 0, 1, 0, 3, 2.0),
    Sketcher.Constraint("DistanceY", -1, 1, 0, 3, 33.5),
    Sketcher.Constraint("DistanceX", 0, 3, -1, 1, 28.960263),
])
pad10 = body10.newObject("PartDesign::Pad", "Pad009")
pad10.Profile = sketch10
pad10.Length = 40
pad10.Midplane = True

# Sketch on YZ plane
sketch11 = body10.newObject("Sketcher::SketchObject", "Sketch010")
sketch11.AttachmentSupport = (doc.getObject("YZ_Plane009"), [""])
sketch11.MapMode = "FlatFace"
sketch11.AttachmentOffset = App.Placement(V(0, 0, -30.960263), App.Rotation())
sketch11.addGeometry([
    Part.LineSegment(V(7.497999, 18.5, 0), V(20, 31.002001, 0)),  # 0
    Part.LineSegment(V(20, 31.002001, 0), V(20, 5.997999, 0)),  # 1
    Part.LineSegment(V(20, 5.997999, 0), V(7.497999, 18.5, 0)),  # 2
    Part.LineSegment(V(-12, 31.002001, 0), V(12, 31.002001, 0)),  # 3
    Part.LineSegment(V(12, 31.002001, 0), V(0, 19.002001, 0)),  # 4
    Part.LineSegment(V(0, 19.002001, 0), V(-12, 31.002001, 0)),  # 5
    Part.LineSegment(V(-20, 5.997999, 0), V(-20, 31.002001, 0)),  # 6
    Part.LineSegment(V(-20, 31.002001, 0), V(-7.497999, 18.5, 0)),  # 7
    Part.LineSegment(V(-7.497999, 18.5, 0), V(-20, 5.997999, 0)),  # 8
    Part.LineSegment(V(0, 17.997999, 0), V(12, 5.997999, 0)),  # 9
    Part.LineSegment(V(12, 5.997999, 0), V(-12, 5.997999, 0)),  # 10
    Part.LineSegment(V(-12, 5.997999, 0), V(0, 17.997999, 0)),  # 11
], False)
sketch11.addConstraint([
    Sketcher.Constraint("Coincident", 0, 2, 1, 1),
    Sketcher.Constraint("Coincident", 1, 2, 2, 1),
    Sketcher.Constraint("Coincident", 2, 2, 0, 1),
    Sketcher.Constraint("Coincident", 3, 2, 4, 1),
    Sketcher.Constraint("Coincident", 4, 2, 5, 1),
    Sketcher.Constraint("Coincident", 5, 2, 3, 1),
    Sketcher.Constraint("Coincident", 6, 2, 7, 1),
    Sketcher.Constraint("Coincident", 7, 2, 8, 1),
    Sketcher.Constraint("Coincident", 8, 2, 6, 1),
    Sketcher.Constraint("Coincident", 9, 2, 10, 1),
    Sketcher.Constraint("Coincident", 10, 2, 11, 1),
    Sketcher.Constraint("Coincident", 11, 2, 9, 1),
    Sketcher.Constraint("Vertical", 1),
    Sketcher.Constraint("Horizontal", 3),
    Sketcher.Constraint("Vertical", 6),
    Sketcher.Constraint("Horizontal", 10),
    Sketcher.Constraint("Symmetric", 0, 2, 6, 2, -2),
    Sketcher.Constraint("Symmetric", 2, 2, 7, 2, -2),
    Sketcher.Constraint("PointOnObject", 4, 2, -2),
    Sketcher.Constraint("PointOnObject", 11, 2, -2),
    Sketcher.Constraint("Perpendicular", 0, 2),
    Sketcher.Constraint("Perpendicular", 2, 4),
    Sketcher.Constraint("Perpendicular", 4, 5),
    Sketcher.Constraint("Parallel", 5, 7),
    Sketcher.Constraint("Perpendicular", 7, 8),
    Sketcher.Constraint("Perpendicular", 8, 9),
    Sketcher.Constraint("Perpendicular", 9, 11),
    Sketcher.Constraint("Horizontal", 0, 2, 3, 2),
    Sketcher.Constraint("Horizontal", 8, 2, 9, 2),
    Sketcher.Constraint("Vertical", 3, 2, 9, 2),
    Sketcher.Constraint("DistanceX", 3, 1, 3, 2, 24.0),
    Sketcher.Constraint("DistanceX", -1, 1, 0, 2, 20.0),
    Sketcher.Constraint("DistanceY", -1, 1, 2, 2, 18.5),
    Sketcher.Constraint("DistanceY", 1, 2, 1, 1, 25.004002),
])
pocket1 = body10.newObject("PartDesign::Pocket", "Pocket")
pocket1.Profile = sketch11
pocket1.Type = "ThroughAll"
pocket1.Reversed = True
doc.recompute()

fillet = body10.newObject("PartDesign::Fillet", "Fillet")
fillet.Base = (pocket1, edges_at(pocket1, [
    (-28.96, 7.498, 18.5),
    (-28.96, -7.498, 18.5),
    (-28.96, 0, 19.002),
    (-28.96, 0, 17.998),
]))
fillet.Radius = 5

doc.recompute()
